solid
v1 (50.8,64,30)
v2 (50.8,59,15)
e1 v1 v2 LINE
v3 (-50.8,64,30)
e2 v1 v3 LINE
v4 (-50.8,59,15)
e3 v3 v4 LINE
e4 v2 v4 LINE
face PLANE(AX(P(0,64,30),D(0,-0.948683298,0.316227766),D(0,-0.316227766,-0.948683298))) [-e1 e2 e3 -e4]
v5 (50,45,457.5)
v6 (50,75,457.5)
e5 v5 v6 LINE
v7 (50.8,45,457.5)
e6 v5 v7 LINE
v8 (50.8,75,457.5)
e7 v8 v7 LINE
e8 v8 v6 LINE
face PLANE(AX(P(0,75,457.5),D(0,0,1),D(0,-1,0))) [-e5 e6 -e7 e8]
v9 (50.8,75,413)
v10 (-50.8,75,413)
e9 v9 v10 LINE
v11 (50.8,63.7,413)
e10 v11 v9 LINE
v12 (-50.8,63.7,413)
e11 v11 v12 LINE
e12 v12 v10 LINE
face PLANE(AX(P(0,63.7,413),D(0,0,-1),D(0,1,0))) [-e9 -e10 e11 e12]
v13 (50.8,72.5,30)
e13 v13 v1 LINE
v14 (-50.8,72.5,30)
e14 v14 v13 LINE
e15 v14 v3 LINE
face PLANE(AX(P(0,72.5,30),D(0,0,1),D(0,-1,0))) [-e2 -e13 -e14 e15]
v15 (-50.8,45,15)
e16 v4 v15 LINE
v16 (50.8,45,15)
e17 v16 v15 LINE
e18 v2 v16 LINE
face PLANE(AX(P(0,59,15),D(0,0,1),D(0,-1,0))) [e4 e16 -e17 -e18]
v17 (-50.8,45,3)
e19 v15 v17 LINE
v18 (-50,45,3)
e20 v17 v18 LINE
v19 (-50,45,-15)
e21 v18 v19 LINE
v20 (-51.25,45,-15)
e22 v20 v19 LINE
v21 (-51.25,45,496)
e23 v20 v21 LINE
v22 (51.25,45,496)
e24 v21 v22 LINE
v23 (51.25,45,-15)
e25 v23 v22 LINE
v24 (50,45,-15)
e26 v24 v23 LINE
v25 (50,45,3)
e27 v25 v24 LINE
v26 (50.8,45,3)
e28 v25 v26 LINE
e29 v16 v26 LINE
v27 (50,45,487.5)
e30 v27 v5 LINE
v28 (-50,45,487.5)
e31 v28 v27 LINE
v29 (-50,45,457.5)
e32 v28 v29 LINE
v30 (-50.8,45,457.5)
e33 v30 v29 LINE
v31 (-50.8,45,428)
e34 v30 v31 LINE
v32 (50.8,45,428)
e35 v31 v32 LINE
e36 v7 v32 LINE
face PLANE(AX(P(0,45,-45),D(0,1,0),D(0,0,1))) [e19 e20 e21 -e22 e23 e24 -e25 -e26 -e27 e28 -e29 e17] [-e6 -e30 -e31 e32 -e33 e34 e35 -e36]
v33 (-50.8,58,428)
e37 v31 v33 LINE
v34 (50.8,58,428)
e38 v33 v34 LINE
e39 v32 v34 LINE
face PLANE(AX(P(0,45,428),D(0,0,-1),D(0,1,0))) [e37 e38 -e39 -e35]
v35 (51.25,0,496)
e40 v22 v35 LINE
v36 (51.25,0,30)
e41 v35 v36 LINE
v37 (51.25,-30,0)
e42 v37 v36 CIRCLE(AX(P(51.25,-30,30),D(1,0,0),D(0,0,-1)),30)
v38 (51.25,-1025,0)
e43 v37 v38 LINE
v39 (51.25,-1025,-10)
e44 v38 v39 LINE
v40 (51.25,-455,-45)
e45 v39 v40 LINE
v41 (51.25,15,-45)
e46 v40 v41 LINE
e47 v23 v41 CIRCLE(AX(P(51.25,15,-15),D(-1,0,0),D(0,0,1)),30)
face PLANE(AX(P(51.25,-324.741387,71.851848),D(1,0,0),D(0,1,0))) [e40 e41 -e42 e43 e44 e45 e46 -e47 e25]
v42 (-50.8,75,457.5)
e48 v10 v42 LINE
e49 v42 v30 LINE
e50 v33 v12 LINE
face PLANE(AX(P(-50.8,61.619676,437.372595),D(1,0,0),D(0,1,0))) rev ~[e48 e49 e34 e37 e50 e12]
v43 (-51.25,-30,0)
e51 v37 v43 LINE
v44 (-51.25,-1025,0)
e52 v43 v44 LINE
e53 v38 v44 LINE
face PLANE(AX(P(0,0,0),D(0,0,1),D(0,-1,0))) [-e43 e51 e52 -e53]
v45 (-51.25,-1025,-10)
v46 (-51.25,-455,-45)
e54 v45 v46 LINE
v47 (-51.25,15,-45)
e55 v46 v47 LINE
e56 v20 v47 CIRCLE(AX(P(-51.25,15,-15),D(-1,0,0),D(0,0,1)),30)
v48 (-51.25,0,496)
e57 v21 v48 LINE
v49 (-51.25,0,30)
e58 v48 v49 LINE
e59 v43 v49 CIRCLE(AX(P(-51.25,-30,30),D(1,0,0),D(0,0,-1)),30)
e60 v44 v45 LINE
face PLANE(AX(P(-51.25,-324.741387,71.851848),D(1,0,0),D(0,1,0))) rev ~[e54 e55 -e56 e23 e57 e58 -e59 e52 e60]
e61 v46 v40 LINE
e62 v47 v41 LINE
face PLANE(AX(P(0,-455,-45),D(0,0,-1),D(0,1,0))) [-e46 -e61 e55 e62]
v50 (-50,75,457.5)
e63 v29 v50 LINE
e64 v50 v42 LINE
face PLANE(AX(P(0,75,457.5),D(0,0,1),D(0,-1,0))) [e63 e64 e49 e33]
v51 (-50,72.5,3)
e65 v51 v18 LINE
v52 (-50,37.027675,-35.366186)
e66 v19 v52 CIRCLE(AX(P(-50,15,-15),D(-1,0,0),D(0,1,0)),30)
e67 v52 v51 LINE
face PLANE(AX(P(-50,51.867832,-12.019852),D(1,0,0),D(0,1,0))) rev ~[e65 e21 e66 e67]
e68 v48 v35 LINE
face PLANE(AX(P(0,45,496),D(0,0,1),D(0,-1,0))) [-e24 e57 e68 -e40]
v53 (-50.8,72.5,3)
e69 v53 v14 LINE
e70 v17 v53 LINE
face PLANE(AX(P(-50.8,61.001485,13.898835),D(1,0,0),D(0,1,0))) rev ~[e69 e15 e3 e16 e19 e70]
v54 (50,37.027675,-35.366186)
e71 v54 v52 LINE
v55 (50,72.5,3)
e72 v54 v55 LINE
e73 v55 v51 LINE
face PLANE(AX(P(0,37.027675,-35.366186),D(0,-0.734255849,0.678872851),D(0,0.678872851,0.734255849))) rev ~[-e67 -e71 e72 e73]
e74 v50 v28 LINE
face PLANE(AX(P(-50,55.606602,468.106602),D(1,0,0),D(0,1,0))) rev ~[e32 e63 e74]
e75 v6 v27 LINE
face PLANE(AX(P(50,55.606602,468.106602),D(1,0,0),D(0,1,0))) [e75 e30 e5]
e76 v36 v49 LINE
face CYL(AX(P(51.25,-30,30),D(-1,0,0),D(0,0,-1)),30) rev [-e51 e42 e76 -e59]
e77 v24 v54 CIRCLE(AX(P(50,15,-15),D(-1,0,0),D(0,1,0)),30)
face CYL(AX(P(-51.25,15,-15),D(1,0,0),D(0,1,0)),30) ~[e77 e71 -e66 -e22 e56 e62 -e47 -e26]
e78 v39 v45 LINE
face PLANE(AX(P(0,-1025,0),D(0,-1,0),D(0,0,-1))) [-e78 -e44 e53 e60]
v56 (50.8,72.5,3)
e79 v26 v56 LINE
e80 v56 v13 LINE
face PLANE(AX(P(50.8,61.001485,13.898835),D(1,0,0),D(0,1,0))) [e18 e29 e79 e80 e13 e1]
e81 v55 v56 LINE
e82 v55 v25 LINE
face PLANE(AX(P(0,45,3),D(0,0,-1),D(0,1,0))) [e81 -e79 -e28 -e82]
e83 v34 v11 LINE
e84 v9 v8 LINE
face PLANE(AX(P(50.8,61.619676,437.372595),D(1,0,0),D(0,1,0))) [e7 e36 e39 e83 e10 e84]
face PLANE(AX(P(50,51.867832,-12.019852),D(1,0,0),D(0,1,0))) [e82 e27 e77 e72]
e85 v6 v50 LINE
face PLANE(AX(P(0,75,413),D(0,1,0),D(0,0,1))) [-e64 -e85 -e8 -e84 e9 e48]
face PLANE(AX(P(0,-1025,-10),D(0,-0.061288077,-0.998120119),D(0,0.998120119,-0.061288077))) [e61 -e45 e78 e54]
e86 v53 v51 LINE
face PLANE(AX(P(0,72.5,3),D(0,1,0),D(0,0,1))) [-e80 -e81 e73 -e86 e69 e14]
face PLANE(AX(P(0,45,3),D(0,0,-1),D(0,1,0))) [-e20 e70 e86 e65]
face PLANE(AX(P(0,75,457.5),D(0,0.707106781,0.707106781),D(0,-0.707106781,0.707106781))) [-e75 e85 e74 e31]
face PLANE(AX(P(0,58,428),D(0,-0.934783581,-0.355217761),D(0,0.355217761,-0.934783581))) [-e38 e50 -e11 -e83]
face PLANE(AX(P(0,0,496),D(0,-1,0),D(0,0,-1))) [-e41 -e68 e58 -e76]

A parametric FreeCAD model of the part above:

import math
import FreeCAD as App
import Part
import Sketcher
from FreeCAD import Vector
Q = App.Units.Quantity


def edges_at(feature, points):
    """Names of the edges that pass closest to the given points."""
    edges = feature.Shape.Edges
    near = lambda p: min(range(len(edges)), key=lambda i: edges[i].distToShape(Part.Vertex(*p))[0])
    return sorted({f"Edge{near(p) + 1}" for p in points})


def add_polygon(sketch, points):
    """Adds a closed chain of lines whose ends are joined by coincident constraints."""
    first, n = sketch.GeometryCount, len(points)
    for a, b in zip(points, points[1:] + points[:1]):
        sketch.addGeometry(Part.LineSegment(App.Vector(*a, 0), App.Vector(*b, 0)), False)
    for i in range(n):
        sketch.addConstraint(Sketcher.Constraint("Coincident", first + i, 2, first + (i + 1) % n, 1))

doc = App.newDocument("Part")
body = doc.addObject("PartDesign::Body", "Body")

sketch1 = body.newObject("Sketcher::SketchObject", "Sketch")
sketch1.AttachmentSupport = (doc.getObject("YZ_Plane"), [""])
sketch1.MapMode = "FlatFace"
add_polygon(sketch1, [(-1025, -10), (-455, -45), (45, -45), (45, 496), (0, 496), (0, 0), (-1025, 0)])
sketch1.addConstraint([
    Sketcher.Constraint("Horizontal", 1),
    Sketcher.Constraint("Vertical", 2),
    Sketcher.Constraint("Horizontal", 3),
    Sketcher.Constraint("Vertical", 4),
    Sketcher.Constraint("Horizontal", 5),
    Sketcher.Constraint("Vertical", 6),
    Sketcher.Constraint("Coincident", 4, 2, -1, 1),
    Sketcher.Constraint("DistanceX", 1, 1, 1, 2, Q("500 mm")),
    Sketcher.Constraint("DistanceX", 3, 2, 3, 1, Q("45 mm")),
    Sketcher.Constraint("DistanceX", 5, 2, 5, 1, Q("1025 mm")),
    Sketcher.Constraint("DistanceY", 2, 1, 2, 2, Q("541 mm")),
    Sketcher.Constraint("DistanceY", 4, 2, 4, 1, Q("496 mm")),
    Sketcher.Constraint("DistanceY", 6, 2, 6, 1, Q("10 mm")),
])
pad1 = body.newObject("PartDesign::Pad", "Pad")
pad1.Profile = sketch1
pad1.Length = 102.5
pad1.Midplane = True
doc.recompute()

fillet = body.newObject("PartDesign::Fillet", "Fillet")
fillet.Base = (pad1, edges_at(pad1, [(0, 0, 0), (0, 45, -45)]))
fillet.Radius = 30

sketch2 = body.newObject("Sketcher::SketchObject", "Sketch001")
sketch2.AttachmentSupport = (doc.getObject("YZ_Plane"), [""])
sketch2.MapMode = "FlatFace"
add_polygon(sketch2, [(45, 15), (45, 3), (72, 3), (72, 30), (64, 30), (59, 15)])
sketch2.addConstraint([
    Sketcher.Constraint("Vertical", 0),
    Sketcher.Constraint("Horizontal", 1),
    Sketcher.Constraint("Vertical", 2),
    Sketcher.Constraint("Horizontal", 3),
    Sketcher.Constraint("Horizontal", 5),
    Sketcher.Constraint("DistanceX", 5, 2, 5, 1, Q("14 mm")),
    Sketcher.Constraint("DistanceY", 0, 2, 0, 1, Q("12 mm")),
    Sketcher.Constraint("DistanceY", 2, 1, 2, 2, Q("27 mm")),
    Sketcher.Constraint("DistanceX", 1, 1, 1, 2, Q("27.5 mm")),
    Sketcher.Constraint("DistanceX", 3, 2, 3, 1, Q("8.5 mm")),
    Sketcher.Constraint("DistanceX", -1, 1, 0, 2, Q("45 mm")),
    Sketcher.Constraint("DistanceY", -1, 1, 0, 2, Q("3 mm")),
])
pad2 = body.newObject("PartDesign::Pad", "Pad001")
pad2.Profile = sketch2
pad2.Length = 101.6
pad2.Midplane = True

sketch3 = body.newObject("Sketcher::SketchObject", "Sketch002")
sketch3.AttachmentSupport = (doc.getObject("YZ_Plane"), [""])
sketch3.MapMode = "FlatFace"
add_polygon(sketch3, [(75, 458), (45, 458), (45, 428), (58, 428), (64, 413), (75, 413)])
sketch3.addConstraint([
    Sketcher.Constraint("Horizontal", 0),
    Sketcher.Constraint("Vertical", 1),
    Sketcher.Constraint("Horizontal", 2),
    Sketcher.Constraint("Horizontal", 4),
    Sketcher.Constraint("Vertical", 5),
    Sketcher.Constraint("DistanceX", 0, 2, 0, 1, Q("30 mm")),
    Sketcher.Constraint("DistanceX", 2, 1, 2, 2, Q("13 mm")),
    Sketcher.Constraint("DistanceX", 4, 1, 4, 2, Q("11.3 mm")),
    Sketcher.Constraint("DistanceY", 1, 2, 1, 1, Q("29.5 mm")),
    Sketcher.Constraint("DistanceY", 5, 1, 5, 2, Q("44.5 mm")),
    Sketcher.Constraint("DistanceX", -1, 1, 0, 2, Q("45 mm")),
    Sketcher.Constraint("DistanceY", -1, 1, 1, 2, Q("428 mm")),
])
pad3 = body.newObject("PartDesign::Pad", "Pad002")
pad3.Profile = sketch3
pad3.Length = 101.6
pad3.Midplane = True

sketch4 = body.newObject("Sketcher::SketchObject", "Sketch003")
sketch4.AttachmentSupport = (doc.getObject("YZ_Plane"), [""])
sketch4.MapMode = "FlatFace"
sketch4.addGeometry(Part.LineSegment(Vector(72, 3, 0), Vector(45, 3, 0)), False)
sketch4.addGeometry(Part.LineSegment(Vector(45, 3, 0), Vector(45, -15, 0)), False)
sketch4.addGeometry(Part.ArcOfCircle(Part.Circle(Vector(15, -15, 0), Vector(0, 0, 1), 30), math.radians(-43), math.radians(0)), False)
sketch4.addGeometry(Part.LineSegment(Vector(37, -35, 0), Vector(72, 3, 0)), False)
add_polygon(sketch4, [(75, 458), (45, 488), (45, 458)])
sketch4.addConstraint([
    Sketcher.Constraint("Coincident", 0, 2, 1, 1),
    Sketcher.Constraint("Tangent", 1, 2, 2, 2),
    Sketcher.Constraint("Tangent", 2, 1, 3, 1),
    Sketcher.Constraint("Coincident", 3, 2, 0, 1),
    Sketcher.Constraint("Horizontal", 0),
    Sketcher.Constraint("Vertical", 1),
    Sketcher.Constraint("Vertical", 5),
    Sketcher.Constraint("Horizontal", 6),
    Sketcher.Constraint("Vertical", 1, 2, 4, 2),
    Sketcher.Constraint("Equal", 6, 5),
    Sketcher.Constraint("Radius", 2, Q("30 mm")),
    Sketcher.Constraint("DistanceX", 6, 1, 6, 2, Q("30 mm")),
    Sketcher.Constraint("DistanceY", 1, 2, 1, 1, Q("18 mm")),
    Sketcher.Constraint("DistanceX", 0, 2, 0, 1, Q("27.5 mm")),
    Sketcher.Constraint("DistanceX", -1, 1, 2, 3, Q("15 mm")),
    Sketcher.Constraint("DistanceY", 2, 3, -1, 1, Q("15 mm")),
    Sketcher.Constraint("DistanceY", -1, 1, 4, 2, Q("487.5 mm")),
])
pad4 = body.newObject("PartDesign::Pad", "Pad003")
pad4.Profile = sketch4
pad4.Length = 100
pad4.Midplane = True

doc.recompute()
